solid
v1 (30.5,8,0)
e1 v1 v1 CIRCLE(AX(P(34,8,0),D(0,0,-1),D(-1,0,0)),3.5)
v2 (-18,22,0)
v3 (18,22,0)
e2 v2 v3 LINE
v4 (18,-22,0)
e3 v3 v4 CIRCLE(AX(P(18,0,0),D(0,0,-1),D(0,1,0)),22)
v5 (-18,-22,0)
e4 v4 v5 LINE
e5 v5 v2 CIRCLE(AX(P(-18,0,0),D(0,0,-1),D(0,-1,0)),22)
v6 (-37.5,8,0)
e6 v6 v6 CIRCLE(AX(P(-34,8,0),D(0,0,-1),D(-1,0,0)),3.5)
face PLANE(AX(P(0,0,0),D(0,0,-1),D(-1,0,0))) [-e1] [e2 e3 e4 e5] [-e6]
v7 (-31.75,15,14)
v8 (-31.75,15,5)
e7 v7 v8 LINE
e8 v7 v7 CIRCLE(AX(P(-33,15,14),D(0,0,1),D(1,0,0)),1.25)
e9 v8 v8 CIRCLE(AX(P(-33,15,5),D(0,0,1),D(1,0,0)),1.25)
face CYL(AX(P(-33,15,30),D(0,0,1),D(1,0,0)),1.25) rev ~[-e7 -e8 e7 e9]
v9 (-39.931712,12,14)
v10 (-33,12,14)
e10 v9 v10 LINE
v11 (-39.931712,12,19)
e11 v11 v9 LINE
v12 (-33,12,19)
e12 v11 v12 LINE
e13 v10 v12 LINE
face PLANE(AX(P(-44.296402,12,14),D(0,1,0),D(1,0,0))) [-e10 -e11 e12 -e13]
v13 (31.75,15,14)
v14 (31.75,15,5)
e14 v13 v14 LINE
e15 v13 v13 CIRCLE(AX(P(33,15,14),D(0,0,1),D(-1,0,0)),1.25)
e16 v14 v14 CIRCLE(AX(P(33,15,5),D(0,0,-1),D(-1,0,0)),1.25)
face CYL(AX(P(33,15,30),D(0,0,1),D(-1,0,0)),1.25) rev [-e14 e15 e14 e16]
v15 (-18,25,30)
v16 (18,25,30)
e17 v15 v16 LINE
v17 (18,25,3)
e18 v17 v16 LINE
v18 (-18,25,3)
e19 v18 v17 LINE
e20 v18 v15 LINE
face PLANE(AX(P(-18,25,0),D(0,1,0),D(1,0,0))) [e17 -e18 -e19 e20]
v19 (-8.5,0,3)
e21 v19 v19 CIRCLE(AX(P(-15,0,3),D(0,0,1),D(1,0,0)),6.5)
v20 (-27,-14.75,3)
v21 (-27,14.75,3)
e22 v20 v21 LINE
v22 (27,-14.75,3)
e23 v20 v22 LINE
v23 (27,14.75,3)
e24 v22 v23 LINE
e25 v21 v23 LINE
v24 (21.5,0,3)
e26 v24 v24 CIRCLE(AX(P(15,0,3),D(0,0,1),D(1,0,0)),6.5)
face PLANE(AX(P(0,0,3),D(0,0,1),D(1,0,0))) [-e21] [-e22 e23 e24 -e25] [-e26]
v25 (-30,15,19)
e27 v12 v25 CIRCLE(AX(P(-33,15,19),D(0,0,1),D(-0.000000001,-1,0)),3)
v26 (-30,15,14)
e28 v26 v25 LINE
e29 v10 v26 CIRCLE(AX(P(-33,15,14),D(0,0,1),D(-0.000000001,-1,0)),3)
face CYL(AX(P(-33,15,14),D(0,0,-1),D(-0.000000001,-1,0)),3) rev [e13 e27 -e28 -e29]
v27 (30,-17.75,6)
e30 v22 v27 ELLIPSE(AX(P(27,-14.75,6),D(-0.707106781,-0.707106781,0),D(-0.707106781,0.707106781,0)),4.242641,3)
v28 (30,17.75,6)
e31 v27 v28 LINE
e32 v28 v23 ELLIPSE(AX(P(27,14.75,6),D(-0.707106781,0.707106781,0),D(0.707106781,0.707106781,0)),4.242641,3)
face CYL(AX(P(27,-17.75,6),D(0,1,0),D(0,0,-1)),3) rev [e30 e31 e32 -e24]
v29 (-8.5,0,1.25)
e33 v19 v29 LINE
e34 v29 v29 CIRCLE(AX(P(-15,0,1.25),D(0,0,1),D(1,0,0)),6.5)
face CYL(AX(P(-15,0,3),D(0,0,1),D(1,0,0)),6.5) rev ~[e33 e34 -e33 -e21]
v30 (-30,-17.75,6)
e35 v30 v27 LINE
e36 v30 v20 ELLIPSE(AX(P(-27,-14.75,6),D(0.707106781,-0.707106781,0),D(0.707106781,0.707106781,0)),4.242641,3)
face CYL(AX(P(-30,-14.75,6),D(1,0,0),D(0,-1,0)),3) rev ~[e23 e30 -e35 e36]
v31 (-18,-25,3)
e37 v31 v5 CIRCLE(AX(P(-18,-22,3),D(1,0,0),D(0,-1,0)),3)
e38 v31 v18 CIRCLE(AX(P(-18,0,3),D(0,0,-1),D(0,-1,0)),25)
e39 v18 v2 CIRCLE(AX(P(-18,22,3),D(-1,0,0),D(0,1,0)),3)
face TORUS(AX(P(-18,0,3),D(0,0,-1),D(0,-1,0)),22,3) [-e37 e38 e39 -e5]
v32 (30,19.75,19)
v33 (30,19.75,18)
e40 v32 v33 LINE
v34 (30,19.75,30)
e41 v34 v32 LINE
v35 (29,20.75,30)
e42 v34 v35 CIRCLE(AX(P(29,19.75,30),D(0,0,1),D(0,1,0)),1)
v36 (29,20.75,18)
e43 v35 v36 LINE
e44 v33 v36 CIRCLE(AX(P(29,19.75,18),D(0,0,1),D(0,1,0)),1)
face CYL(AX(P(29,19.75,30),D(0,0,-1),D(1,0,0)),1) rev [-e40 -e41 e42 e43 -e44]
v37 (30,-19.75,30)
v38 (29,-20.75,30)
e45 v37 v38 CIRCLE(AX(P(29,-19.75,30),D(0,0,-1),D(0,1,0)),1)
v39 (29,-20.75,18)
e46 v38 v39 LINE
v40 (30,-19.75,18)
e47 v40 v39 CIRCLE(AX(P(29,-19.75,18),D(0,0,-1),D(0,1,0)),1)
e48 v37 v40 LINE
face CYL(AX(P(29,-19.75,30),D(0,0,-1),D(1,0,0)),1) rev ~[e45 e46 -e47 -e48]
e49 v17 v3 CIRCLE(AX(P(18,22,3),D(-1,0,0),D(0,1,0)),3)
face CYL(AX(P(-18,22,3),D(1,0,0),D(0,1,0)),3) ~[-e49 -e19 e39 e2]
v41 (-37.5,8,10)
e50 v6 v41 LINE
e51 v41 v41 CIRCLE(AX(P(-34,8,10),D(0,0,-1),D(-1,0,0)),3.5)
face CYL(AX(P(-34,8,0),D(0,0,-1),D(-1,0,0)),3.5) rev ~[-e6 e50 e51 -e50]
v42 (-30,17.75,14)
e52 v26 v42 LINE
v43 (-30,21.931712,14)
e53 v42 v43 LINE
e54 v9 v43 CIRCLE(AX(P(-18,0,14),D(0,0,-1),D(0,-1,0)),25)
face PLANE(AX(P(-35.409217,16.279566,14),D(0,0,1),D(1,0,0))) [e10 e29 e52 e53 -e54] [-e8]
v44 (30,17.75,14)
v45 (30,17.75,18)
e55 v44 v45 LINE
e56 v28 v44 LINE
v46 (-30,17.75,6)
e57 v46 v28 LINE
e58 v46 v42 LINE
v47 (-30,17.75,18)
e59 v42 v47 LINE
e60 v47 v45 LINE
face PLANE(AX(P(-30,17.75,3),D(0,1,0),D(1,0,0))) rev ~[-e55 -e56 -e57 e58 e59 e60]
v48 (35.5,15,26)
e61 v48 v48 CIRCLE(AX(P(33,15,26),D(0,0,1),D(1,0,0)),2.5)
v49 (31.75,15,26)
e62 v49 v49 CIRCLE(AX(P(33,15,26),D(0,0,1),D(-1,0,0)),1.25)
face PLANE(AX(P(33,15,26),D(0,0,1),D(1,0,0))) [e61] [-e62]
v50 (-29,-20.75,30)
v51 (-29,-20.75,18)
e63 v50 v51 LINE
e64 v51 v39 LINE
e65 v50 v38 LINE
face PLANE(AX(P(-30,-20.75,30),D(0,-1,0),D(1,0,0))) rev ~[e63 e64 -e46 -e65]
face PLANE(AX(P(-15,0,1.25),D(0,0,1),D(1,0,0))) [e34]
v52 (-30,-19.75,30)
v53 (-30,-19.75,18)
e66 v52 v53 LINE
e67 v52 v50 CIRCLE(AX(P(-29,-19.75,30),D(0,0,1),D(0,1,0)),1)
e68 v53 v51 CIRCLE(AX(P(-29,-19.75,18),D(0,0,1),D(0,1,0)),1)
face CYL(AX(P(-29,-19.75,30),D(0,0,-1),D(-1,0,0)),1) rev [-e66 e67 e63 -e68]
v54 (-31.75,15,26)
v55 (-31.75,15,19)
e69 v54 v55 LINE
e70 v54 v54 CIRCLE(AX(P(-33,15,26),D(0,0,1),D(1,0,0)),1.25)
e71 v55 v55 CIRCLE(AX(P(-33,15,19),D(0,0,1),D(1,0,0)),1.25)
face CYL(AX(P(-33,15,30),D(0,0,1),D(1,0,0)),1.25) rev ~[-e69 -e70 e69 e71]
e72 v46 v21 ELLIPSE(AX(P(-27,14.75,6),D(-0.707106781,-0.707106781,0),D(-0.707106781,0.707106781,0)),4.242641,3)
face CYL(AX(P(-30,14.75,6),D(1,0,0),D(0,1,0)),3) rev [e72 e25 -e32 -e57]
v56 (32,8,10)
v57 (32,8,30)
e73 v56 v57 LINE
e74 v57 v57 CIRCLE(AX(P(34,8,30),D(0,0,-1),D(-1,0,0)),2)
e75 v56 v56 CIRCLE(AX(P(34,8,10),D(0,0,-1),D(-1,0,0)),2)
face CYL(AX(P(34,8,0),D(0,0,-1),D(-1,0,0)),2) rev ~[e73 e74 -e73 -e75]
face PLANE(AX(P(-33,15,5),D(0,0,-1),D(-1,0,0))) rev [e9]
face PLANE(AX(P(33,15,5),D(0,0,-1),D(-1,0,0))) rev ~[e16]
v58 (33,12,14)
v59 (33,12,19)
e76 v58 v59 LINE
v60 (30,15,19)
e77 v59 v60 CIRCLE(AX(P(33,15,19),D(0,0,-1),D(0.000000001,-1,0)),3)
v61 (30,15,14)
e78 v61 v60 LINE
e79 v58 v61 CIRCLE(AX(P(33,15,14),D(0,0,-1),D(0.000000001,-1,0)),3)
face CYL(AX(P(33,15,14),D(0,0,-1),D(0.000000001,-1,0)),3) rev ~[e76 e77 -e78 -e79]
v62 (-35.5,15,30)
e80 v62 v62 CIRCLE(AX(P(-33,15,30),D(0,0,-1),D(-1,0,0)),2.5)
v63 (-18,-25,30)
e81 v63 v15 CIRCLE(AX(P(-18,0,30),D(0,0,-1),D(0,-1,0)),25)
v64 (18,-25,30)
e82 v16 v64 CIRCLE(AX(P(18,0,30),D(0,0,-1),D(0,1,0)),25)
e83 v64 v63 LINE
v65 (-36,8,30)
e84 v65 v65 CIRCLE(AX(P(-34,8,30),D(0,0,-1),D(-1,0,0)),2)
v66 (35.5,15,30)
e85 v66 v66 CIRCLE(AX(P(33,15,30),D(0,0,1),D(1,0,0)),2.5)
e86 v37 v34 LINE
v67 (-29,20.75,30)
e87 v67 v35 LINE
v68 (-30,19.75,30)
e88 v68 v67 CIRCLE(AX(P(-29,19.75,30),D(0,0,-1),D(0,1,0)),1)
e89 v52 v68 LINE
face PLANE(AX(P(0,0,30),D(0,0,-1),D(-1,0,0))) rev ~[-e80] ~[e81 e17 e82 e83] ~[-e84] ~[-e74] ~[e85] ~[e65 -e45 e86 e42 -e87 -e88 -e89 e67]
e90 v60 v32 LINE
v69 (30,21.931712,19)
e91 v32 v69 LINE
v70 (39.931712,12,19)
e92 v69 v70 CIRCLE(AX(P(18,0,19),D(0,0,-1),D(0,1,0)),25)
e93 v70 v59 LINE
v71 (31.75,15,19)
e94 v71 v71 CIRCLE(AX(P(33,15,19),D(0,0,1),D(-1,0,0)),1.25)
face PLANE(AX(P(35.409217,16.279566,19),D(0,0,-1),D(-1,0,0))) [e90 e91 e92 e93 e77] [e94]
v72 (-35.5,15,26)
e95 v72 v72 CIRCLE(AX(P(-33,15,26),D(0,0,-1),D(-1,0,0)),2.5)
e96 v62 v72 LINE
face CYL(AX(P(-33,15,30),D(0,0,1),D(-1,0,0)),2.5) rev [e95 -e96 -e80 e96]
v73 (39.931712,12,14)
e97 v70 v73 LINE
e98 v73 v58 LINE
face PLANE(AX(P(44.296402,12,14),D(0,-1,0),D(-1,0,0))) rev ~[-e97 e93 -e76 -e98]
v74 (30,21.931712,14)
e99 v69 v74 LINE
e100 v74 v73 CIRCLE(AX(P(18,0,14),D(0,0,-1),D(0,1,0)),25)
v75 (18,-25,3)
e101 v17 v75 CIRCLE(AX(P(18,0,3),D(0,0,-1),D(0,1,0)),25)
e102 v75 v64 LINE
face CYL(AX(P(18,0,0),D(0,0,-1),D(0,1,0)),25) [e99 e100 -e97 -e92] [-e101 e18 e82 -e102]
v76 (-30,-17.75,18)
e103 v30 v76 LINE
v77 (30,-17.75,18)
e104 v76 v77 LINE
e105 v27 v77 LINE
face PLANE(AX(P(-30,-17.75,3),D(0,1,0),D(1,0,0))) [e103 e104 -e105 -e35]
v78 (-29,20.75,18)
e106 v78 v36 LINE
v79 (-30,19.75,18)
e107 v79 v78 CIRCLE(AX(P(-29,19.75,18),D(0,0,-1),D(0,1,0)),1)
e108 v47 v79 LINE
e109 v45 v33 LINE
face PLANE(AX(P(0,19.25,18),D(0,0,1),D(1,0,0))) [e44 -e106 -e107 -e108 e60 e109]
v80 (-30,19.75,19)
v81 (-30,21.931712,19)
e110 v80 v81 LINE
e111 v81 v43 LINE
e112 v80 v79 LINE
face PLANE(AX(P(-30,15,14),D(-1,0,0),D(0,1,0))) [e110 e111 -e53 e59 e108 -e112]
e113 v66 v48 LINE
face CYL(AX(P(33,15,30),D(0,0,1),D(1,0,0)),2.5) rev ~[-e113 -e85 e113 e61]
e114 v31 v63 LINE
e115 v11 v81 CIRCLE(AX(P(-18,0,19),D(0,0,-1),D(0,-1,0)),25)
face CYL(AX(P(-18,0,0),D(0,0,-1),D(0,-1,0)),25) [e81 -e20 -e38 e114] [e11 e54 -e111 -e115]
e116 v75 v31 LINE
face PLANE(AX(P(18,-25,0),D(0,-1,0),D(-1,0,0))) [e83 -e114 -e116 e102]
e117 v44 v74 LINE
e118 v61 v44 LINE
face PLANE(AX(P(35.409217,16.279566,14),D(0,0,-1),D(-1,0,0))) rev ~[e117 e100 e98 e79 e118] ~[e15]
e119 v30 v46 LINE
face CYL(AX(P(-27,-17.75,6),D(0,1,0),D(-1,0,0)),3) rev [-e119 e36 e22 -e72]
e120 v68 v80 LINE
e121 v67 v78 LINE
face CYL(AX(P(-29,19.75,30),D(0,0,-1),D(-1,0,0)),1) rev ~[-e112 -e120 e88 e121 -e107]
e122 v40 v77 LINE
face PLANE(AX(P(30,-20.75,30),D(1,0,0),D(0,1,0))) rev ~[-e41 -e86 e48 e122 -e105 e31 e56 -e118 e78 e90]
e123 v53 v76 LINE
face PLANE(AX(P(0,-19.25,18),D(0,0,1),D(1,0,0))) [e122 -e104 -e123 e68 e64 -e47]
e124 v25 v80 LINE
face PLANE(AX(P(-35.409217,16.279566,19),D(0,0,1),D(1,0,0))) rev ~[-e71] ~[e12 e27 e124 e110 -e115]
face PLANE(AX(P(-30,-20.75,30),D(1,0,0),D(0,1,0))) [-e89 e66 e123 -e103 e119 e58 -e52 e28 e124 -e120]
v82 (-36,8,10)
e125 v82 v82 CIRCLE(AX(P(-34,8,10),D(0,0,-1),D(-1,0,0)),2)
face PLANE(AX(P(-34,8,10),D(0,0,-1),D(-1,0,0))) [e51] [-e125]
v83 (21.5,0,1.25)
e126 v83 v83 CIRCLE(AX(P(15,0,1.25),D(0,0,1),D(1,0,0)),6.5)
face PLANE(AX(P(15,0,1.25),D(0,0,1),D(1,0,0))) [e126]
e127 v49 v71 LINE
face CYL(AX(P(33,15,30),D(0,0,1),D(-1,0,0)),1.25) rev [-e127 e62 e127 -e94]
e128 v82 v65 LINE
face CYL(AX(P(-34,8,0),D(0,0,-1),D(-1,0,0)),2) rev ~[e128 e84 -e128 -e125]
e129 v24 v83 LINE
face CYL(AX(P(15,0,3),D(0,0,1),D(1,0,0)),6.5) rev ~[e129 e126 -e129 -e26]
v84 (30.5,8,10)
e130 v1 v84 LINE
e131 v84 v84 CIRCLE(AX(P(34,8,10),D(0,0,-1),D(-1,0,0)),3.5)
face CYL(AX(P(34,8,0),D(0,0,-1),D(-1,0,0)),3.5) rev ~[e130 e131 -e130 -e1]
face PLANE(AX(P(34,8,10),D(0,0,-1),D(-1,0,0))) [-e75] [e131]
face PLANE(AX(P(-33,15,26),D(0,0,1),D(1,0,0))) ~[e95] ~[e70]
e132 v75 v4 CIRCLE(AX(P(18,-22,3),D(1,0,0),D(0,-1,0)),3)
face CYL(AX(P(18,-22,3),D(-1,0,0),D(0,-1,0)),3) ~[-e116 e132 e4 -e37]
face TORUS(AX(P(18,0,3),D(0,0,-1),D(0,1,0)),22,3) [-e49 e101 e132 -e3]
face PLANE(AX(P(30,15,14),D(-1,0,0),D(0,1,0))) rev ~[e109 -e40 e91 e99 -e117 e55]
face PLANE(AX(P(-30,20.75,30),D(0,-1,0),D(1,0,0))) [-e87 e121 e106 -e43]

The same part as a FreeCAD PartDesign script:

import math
import FreeCAD as App
import Part
import Sketcher


def edges_at(feature, points):
    """Names of the edges that pass closest to the given points."""
    edges = feature.Shape.Edges
    near = lambda p: min(range(len(edges)), key=lambda i: edges[i].distToShape(Part.Vertex(*p))[0])
    return sorted({f"Edge{near(p) + 1}" for p in points})


def add_polygon(sketch, points):
    """Adds a closed chain of lines whose ends are joined by coincident constraints."""
    first, n = sketch.GeometryCount, len(points)
    for a, b in zip(points, points[1:] + points[:1]):
        sketch.addGeometry(Part.LineSegment(App.Vector(*a, 0), App.Vector(*b, 0)), False)
    for i in range(n):
        sketch.addConstraint(Sketcher.Constraint("Coincident", first + i, 2, first + (i + 1) % n, 1))

doc = App.newDocument("Part")
body = doc.addObject("PartDesign::Body", "Body")

# Sketch on XY plane
sketch1 = body.newObject("Sketcher::SketchObject", "Sketch")
sketch1.AttachmentSupport = (doc.getObject("XY_Plane"), [""])
sketch1.MapMode = "FlatFace"
sketch1.addGeometry([
    Part.LineSegment(App.Vector(18, 25, 0), App.Vector(-18, 25, 0)),
    Part.ArcOfCircle(Part.Circle(App.Vector(-18, 0, 0), App.Vector(0, 0, 1), 25), math.radians(90), math.radians(270)),
    Part.LineSegment(App.Vector(-18, -25, 0), App.Vector(18, -25, 0)),
    Part.ArcOfCircle(Part.Circle(App.Vector(18, 0, 0), App.Vector(0, 0, 1), 25), math.radians(-90), math.radians(90)),
], False)
sketch1.addConstraint([
    Sketcher.Constraint("Tangent", 0, 2, 1, 1),
    Sketcher.Constraint("Tangent", 1, 2, 2, 1),
    Sketcher.Constraint("Tangent", 2, 2, 3, 1),
    Sketcher.Constraint("Tangent", 3, 2, 0, 1),
    Sketcher.Constraint("Horizontal", 0),
    Sketcher.Constraint("Horizontal", 2),
    Sketcher.Constraint("Symmetric", 1, 3, 3, 3, -1, 1),
    Sketcher.Constraint("Radius", 1, 25.0),
    Sketcher.Constraint("DistanceX", 0, 2, 0, 1, 36.0),
])
pad1 = body.newObject("PartDesign::Pad", "Pad")
pad1.Profile = sketch1
pad1.Length = 30

# Sketch on XY plane
sketch2 = body.newObject("Sketcher::SketchObject", "Sketch001")
sketch2.AttachmentSupport = (doc.getObject("XY_Plane"), [""])
sketch2.MapMode = "FlatFace"
sketch2.AttachmentOffset = App.Placement(App.Vector(0, 0, 30), App.Rotation())
add_polygon(sketch2, [(-30, 21), (-30, -21), (30, -21), (30, 21)])  # lines 0-3
sketch2.addConstraint([
    Sketcher.Constraint("Vertical", 0),
    Sketcher.Constraint("Horizontal", 1),
    Sketcher.Constraint("Vertical", 2),
    Sketcher.Constraint("Horizontal", 3),
    Sketcher.Constraint("Symmetric", 0, 2, 2, 2, -1, 1),
    Sketcher.Constraint("DistanceX", 1, 1, 1, 2, 60.0),
    Sketcher.Constraint("DistanceY", 0, 2, 0, 1, 41.5),
])
pocket1 = body.newObject("PartDesign::Pocket", "Pocket")
pocket1.Profile = sketch2
pocket1.Length = 27

# Sketch on XY plane
sketch3 = body.newObject("Sketcher::SketchObject", "Sketch002")
sketch3.AttachmentSupport = (doc.getObject("XY_Plane"), [""])
sketch3.MapMode = "FlatFace"
sketch3.AttachmentOffset = App.Placement(App.Vector(0, 0, 3), App.Rotation())
add_polygon(sketch3, [(-30, 20.8), (-30, 17.8), (30, 17.8), (30, 20.8)])  # lines 0-3
add_polygon(sketch3, [(-30, -17.8), (-30, -20.8), (30, -20.8), (30, -17.8)])  # lines 4-7
sketch3.addConstraint([
    Sketcher.Constraint("Vertical", 0),
    Sketcher.Constraint("Horizontal", 1),
    Sketcher.Constraint("Vertical", 2),
    Sketcher.Constraint("Horizontal", 3),
    Sketcher.Constraint("Vertical", 4),
    Sketcher.Constraint("Horizontal", 5),
    Sketcher.Constraint("Vertical", 6),
    Sketcher.Constraint("Horizontal", 7),
    Sketcher.Constraint("Symmetric", 2, 2, 4, 2, -1, 1),
    Sketcher.Constraint("Symmetric", 0, 2, 6, 2, -1, 1),
    Sketcher.Constraint("Vertical", 3, 2, 4, 2),
    Sketcher.Constraint("DistanceX", 1, 1, 1, 2, 60.0),
    Sketcher.Constraint("DistanceY", 0, 2, 0, 1, 3.0),
    Sketcher.Constraint("DistanceY", 4, 2, 0, 2, 38.5),
])
pad2 = body.newObject("PartDesign::Pad", "Pad001")
pad2.Profile = sketch3
pad2.Length = 15
doc.recompute()

fillet = body.newObject("PartDesign::Fillet", "Fillet")
fillet.Base = (pad2, edges_at(pad2, [
    (-30, 20.75, 24),
    (30, 20.75, 24),
    (30, -20.75, 24),
    (-30, -20.75, 24),
]))
fillet.Radius = 1
doc.recompute()

fillet2 = body.newObject("PartDesign::Fillet", "Fillet001")
fillet2.Base = (fillet, edges_at(fillet, [
    (-30, 0, 3),
    (0, 17.75, 3),
    (30, 0, 3),
    (0, -17.75, 3),
]))
fillet2.Radius = 3
doc.recompute()

fillet3 = body.newObject("PartDesign::Fillet", "Fillet002")
fillet3.Base = (fillet2, edges_at(fillet2, [
    (0, 25, 0),
    (43, 0, 0),
    (0, -25, 0),
    (-43, 0, 0),
]))
fillet3.Radius = 3

# Sketch on XY plane
sketch4 = body.newObject("Sketcher::SketchObject", "Sketch003")
sketch4.AttachmentSupport = (doc.getObject("XY_Plane"), [""])
sketch4.MapMode = "FlatFace"
sketch4.AttachmentOffset = App.Placement(App.Vector(0, 0, 14), App.Rotation())
sketch4.addGeometry([
    Part.LineSegment(App.Vector(-44.3, 12, 0), App.Vector(-33, 12, 0)),  # 0
    Part.ArcOfCircle(Part.Circle(App.Vector(-33, 15, 0), App.Vector(0, 0, 1), 3), math.radians(-90), math.radians(0)),  # 1
    Part.LineSegment(App.Vector(-30, 15, 0), App.Vector(-30, 24.1, 0)),  # 2
    Part.LineSegment(App.Vector(-30, 24.1, 0), App.Vector(-44.3, 12, 0)),  # 3
    Part.LineSegment(App.Vector(44.3, 12, 0), App.Vector(30, 24.1, 0)),  # 4
    Part.LineSegment(App.Vector(30, 24.1, 0), App.Vector(30, 15, 0)),  # 5
    Part.ArcOfCircle(Part.Circle(App.Vector(33, 15, 0), App.Vector(0, 0, 1), 3), math.radians(180), math.radians(270)),  # 6
    Part.LineSegment(App.Vector(33, 12, 0), App.Vector(44.3, 12, 0)),  # 7
], False)
sketch4.addConstraint([
    Sketcher.Constraint("Tangent", 0, 2, 1, 1),
    Sketcher.Constraint("Tangent", 1, 2, 2, 1),
    Sketcher.Constraint("Coincident", 2, 2, 3, 1),
    Sketcher.Constraint("Coincident", 3, 2, 0, 1),
    Sketcher.Constraint("Coincident", 4, 2, 5, 1),
    Sketcher.Constraint("Tangent", 5, 2, 6, 1),
    Sketcher.Constraint("Tangent", 6, 2, 7, 1),
    Sketcher.Constraint("Coincident", 7, 2, 4, 1),
    Sketcher.Constraint("Horizontal", 0),
    Sketcher.Constraint("Vertical", 2),
    Sketcher.Constraint("Vertical", 5),
    Sketcher.Constraint("Horizontal", 7),
    Sketcher.Constraint("Equal", 1, 6),
    Sketcher.Constraint("Symmetric", 1, 3, 6, 3, -2),
    Sketcher.Constraint("Horizontal", 2, 2, 4, 2),
    Sketcher.Constraint("Equal", 0, 7),
    Sketcher.Constraint("Radius", 1, 3.0),
    Sketcher.Constraint("DistanceX", 1, 3, -1, 1, 33.0),
    Sketcher.Constraint("DistanceY", -1, 1, 1, 3, 15.0),
    Sketcher.Constraint("DistanceX", 0, 1, 0, 2, 11.296402),
    Sketcher.Constraint("DistanceY", 2, 1, 2, 2, 9.104241),
])
pocket2 = body.newObject("PartDesign::Pocket", "Pocket001")
pocket2.Profile = sketch4
pocket2.Length = 5
pocket2.Reversed = True

# Sketch on XY plane
sketch5 = body.newObject("Sketcher::SketchObject", "Sketch004")
sketch5.AttachmentSupport = (doc.getObject("XY_Plane"), [""])
sketch5.MapMode = "FlatFace"
sketch5.AttachmentOffset = App.Placement(App.Vector(0, 0, 30), App.Rotation())
sketch5.addGeometry(Part.Circle(App.Vector(33, 15, 0), App.Vector(0, 0, 1), 1.2), False)
sketch5.addConstraint([
    Sketcher.Constraint("Diameter", 0, 2.5),
    Sketcher.Constraint("DistanceX", -1, 1, 0, 3, 33.0),
    Sketcher.Constraint("DistanceY", -1, 1, 0, 3, 15.0),
])
pocket3 = body.newObject("PartDesign::Pocket", "Pocket002")
pocket3.Profile = sketch5
pocket3.Length = 25

# Sketch on XY plane
sketch6 = body.newObject("Sketcher::SketchObject", "Sketch005")
sketch6.AttachmentSupport = (doc.getObject("XY_Plane"), [""])
sketch6.MapMode = "FlatFace"
sketch6.AttachmentOffset = App.Placement(App.Vector(0, 0, 30), App.Rotation())
sketch6.addGeometry(Part.Circle(App.Vector(33, 15, 0), App.Vector(0, 0, 1), 2.5), False)
sketch6.addConstraint([
    Sketcher.Constraint("Diameter", 0, 5.0),
    Sketcher.Constraint("DistanceX", -1, 1, 0, 3, 33.0),
    Sketcher.Constraint("DistanceY", -1, 1, 0, 3, 15.0),
])
pocket4 = body.newObject("PartDesign::Pocket", "Pocket003")
pocket4.Profile = sketch6
pocket4.Length = 4
doc.recompute()

mirrored = body.newObject("PartDesign::Mirrored", "Mirrored")
mirrored.Originals = [pocket3, pocket4]
mirrored.MirrorPlane = (doc.getObject("YZ_Plane"), [""])
body.Tip = mirrored

# Sketch on XY plane
sketch7 = body.newObject("Sketcher::SketchObject", "Sketch006")
sketch7.AttachmentSupport = (doc.getObject("XY_Plane"), [""])
sketch7.MapMode = "FlatFace"
sketch7.AttachmentOffset = App.Placement(App.Vector(0, 0, 3), App.Rotation())
sketch7.addGeometry([
    Part.Circle(App.Vector(-15, 0, 0), App.Vector(0, 0, 1), 6),
    Part.Circle(App.Vector(15, 0, 0), App.Vector(0, 0, 1), 6),
], False)
sketch7.addConstraint([
    Sketcher.Constraint("Equal", 0, 1),
    Sketcher.Constraint("Symmetric", 0, 3, 1, 3, -1, 1),
    Sketcher.Constraint("PointOnObject", 0, 3, -1),
    Sketcher.Constraint("Diameter", 0, 13.0),
    Sketcher.Constraint("DistanceX", 0, 3, -1, 1, 15.0),
])
pocket5 = body.newObject("PartDesign::Pocket", "Pocket004")
pocket5.Profile = sketch7
pocket5.Length = 1.75

# Sketch on XY plane
sketch8 = body.newObject("Sketcher::SketchObject", "Sketch007")
sketch8.AttachmentSupport = (doc.getObject("XY_Plane"), [""])
sketch8.MapMode = "FlatFace"
sketch8.addGeometry([
    Part.Circle(App.Vector(34, 8, 0), App.Vector(0, 0, 1), 2),
    Part.Circle(App.Vector(-34, 8, 0), App.Vector(0, 0, 1), 2),
], False)
sketch8.addConstraint([
    Sketcher.Constraint("Equal", 0, 1),
    Sketcher.Constraint("Symmetric", 0, 3, 1, 3, -2),
    Sketcher.Constraint("Diameter", 0, 4.0),
    Sketcher.Constraint("DistanceX", -1, 1, 0, 3, 34.0),
    Sketcher.Constraint("DistanceY", -1, 1, 0, 3, 8.0),
])
pocket6 = body.newObject("PartDesign::Pocket", "Pocket005")
pocket6.Profile = sketch8
pocket6.Type = "ThroughAll"
pocket6.Reversed = True

# Sketch on XY plane
sketch9 = body.newObject("Sketcher::SketchObject", "Sketch008")
sketch9.AttachmentSupport = (doc.getObject("XY_Plane"), [""])
sketch9.MapMode = "FlatFace"
sketch9.addGeometry([
    Part.Circle(App.Vector(34, 8, 0), App.Vector(0, 0, 1), 3.5),
    Part.Circle(App.Vector(-34, 8, 0), App.Vector(0, 0, 1), 3.5),
], False)
sketch9.addConstraint([
    Sketcher.Constraint("Equal", 0, 1),
    Sketcher.Constraint("Symmetric", 0, 3, 1, 3, -2),
    Sketcher.Constraint("Diameter", 0, 7.0),
    Sketcher.Constraint("DistanceX", -1, 1, 0, 3, 34.0),
    Sketcher.Constraint("DistanceY", -1, 1, 0, 3, 8.0),
])
pocket7 = body.newObject("PartDesign::Pocket", "Pocket006")
pocket7.Profile = sketch9
pocket7.Length = 10
pocket7.Reversed = True

doc.recompute()
